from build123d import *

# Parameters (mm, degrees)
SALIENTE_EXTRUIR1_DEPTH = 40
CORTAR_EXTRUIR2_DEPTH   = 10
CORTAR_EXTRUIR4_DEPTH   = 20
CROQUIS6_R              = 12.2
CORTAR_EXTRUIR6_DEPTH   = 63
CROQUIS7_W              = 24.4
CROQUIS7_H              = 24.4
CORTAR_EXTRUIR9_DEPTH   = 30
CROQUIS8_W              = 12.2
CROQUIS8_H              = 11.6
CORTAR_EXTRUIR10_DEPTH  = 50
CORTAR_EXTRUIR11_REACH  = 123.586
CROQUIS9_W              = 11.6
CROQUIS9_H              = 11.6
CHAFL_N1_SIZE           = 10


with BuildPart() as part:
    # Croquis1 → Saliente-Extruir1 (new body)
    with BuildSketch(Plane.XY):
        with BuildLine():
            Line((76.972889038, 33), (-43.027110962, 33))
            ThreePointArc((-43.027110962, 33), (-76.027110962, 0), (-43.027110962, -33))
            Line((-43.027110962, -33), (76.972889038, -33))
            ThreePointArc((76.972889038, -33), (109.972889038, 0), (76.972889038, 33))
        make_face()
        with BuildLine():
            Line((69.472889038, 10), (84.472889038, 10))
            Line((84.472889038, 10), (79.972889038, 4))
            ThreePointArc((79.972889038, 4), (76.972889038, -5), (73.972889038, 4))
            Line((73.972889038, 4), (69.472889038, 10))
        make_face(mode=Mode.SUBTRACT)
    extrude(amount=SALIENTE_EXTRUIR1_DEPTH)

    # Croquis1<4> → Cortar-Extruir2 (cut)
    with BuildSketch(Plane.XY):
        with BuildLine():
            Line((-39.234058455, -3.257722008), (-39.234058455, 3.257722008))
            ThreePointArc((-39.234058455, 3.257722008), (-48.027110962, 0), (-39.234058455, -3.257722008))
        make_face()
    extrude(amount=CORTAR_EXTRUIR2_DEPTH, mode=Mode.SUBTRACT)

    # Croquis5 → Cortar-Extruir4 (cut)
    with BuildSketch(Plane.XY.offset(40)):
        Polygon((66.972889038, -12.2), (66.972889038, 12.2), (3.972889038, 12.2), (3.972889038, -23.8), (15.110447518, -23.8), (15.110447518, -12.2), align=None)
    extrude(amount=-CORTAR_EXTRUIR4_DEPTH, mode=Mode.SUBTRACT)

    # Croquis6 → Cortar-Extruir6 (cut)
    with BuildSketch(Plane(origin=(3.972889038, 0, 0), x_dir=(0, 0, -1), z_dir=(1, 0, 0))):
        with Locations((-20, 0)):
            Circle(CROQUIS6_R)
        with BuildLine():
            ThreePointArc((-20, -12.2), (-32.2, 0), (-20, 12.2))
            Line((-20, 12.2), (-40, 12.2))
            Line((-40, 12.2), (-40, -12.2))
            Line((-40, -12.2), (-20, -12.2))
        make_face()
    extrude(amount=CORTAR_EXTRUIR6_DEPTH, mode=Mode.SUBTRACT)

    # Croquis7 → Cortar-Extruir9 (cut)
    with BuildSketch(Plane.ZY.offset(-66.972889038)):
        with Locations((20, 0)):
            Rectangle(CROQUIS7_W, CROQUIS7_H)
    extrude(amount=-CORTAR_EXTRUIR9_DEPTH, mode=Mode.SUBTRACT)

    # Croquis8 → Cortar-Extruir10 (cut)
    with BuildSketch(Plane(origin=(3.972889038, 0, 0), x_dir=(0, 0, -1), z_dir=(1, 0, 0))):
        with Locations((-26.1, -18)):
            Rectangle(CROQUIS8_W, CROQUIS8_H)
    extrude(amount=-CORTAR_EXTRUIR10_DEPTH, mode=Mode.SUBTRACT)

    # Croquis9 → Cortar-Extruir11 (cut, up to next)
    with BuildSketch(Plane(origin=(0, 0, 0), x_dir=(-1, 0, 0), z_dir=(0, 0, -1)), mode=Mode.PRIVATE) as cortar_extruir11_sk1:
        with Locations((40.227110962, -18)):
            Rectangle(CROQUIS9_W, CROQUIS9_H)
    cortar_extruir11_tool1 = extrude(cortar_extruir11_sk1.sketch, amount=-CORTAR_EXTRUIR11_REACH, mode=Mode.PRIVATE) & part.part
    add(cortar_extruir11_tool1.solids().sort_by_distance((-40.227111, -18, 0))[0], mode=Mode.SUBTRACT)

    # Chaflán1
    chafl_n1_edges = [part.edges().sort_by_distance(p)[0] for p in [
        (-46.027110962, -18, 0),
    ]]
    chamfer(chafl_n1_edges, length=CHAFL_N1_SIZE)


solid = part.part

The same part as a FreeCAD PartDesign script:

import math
import FreeCAD as App
import Part
import Sketcher
Q = App.Units.Quantity


def edges_at(feature, points):
    """Names of the edges that pass closest to the given points."""
    edges = feature.Shape.Edges
    near = lambda p: min(range(len(edges)), key=lambda i: edges[i].distToShape(Part.Vertex(*p))[0])
    return sorted({f"Edge{near(p) + 1}" for p in points})


def add_polygon(sketch, points):
    """Adds a closed chain of lines whose ends are joined by coincident constraints."""
    first, n = sketch.GeometryCount, len(points)
    for a, b in zip(points, points[1:] + points[:1]):
        sketch.addGeometry(Part.LineSegment(App.Vector(*a, 0), App.Vector(*b, 0)), False)
    for i in range(n):
        sketch.addConstraint(Sketcher.Constraint("Coincident", first + i, 2, first + (i + 1) % n, 1))

doc = App.newDocument("Part")
body = doc.addObject("PartDesign::Body", "Body")

sketch1 = body.newObject("Sketcher::SketchObject", "Sketch")
sketch1.AttachmentSupport = (doc.getObject("XY_Plane"), [""])
sketch1.MapMode = "FlatFace"
sketch1.addGeometry([
    Part.LineSegment(App.Vector(77, 33, 0), App.Vector(-43, 33, 0)),
    Part.ArcOfCircle(Part.Circle(App.Vector(-43, 0, 0), App.Vector(0, 0, 1), 33), math.radians(90), math.radians(270)),
    Part.LineSegment(App.Vector(-43, -33, 0), App.Vector(77, -33, 0)),
    Part.ArcOfCircle(Part.Circle(App.Vector(77, 0, 0), App.Vector(0, 0, 1), 33), math.radians(-90), math.radians(90)),
    Part.LineSegment(App.Vector(74, 4, 0), App.Vector(69, 10, 0)),
    Part.LineSegment(App.Vector(69, 10, 0), App.Vector(84, 10, 0)),
    Part.LineSegment(App.Vector(84, 10, 0), App.Vector(80, 4, 0)),
    Part.ArcOfCircle(Part.Circle(App.Vector(77, 0, 0), App.Vector(0, 0, 1), 5), math.radians(127), math.radians(413)),
], False)
sketch1.addConstraint([
    Sketcher.Constraint("Tangent", 0, 2, 1, 1),
    Sketcher.Constraint("Tangent", 1, 2, 2, 1),
    Sketcher.Constraint("Tangent", 2, 2, 3, 1),
    Sketcher.Constraint("Tangent", 3, 2, 0, 1),
    Sketcher.Constraint("Coincident", 4, 2, 5, 1),
    Sketcher.Constraint("Coincident", 5, 2, 6, 1),
    Sketcher.Constraint("Coincident", 6, 2, 7, 2),
    Sketcher.Constraint("Coincident", 7, 1, 4, 1),
    Sketcher.Constraint("Horizontal", 0),
    Sketcher.Constraint("Horizontal", 2),
    Sketcher.Constraint("Horizontal", 5),
    Sketcher.Constraint("Coincident", 7, 3, 3, 3),
    Sketcher.Constraint("PointOnObject", 1, 3, -1),
    Sketcher.Constraint("Horizontal", 6, 2, 7, 1),
    Sketcher.Constraint("Equal", 4, 6),
    Sketcher.Constraint("Radius", 1, Q("33 mm")),
    Sketcher.Constraint("Radius", 7, Q("5 mm")),
    Sketcher.Constraint("DistanceX", 0, 2, 0, 1, Q("120 mm")),
    Sketcher.Constraint("DistanceX", 5, 1, 5, 2, Q("15 mm")),
    Sketcher.Constraint("DistanceY", -1, 1, 4, 2, Q("10 mm")),
    Sketcher.Constraint("DistanceY", -1, 1, 6, 2, Q("4 mm")),
    Sketcher.Constraint("DistanceX", 1, 3, -1, 1, Q("43.027111 mm")),
])
pad1 = body.newObject("PartDesign::Pad", "Pad")
pad1.Profile = sketch1
pad1.Length = 40

sketch2 = body.newObject("Sketcher::SketchObject", "Sketch001")
sketch2.AttachmentSupport = (doc.getObject("XY_Plane"), [""])
sketch2.MapMode = "FlatFace"
sketch2.addGeometry([
    Part.LineSegment(App.Vector(-39, -3, 0), App.Vector(-39, 3, 0)),
    Part.ArcOfCircle(Part.Circle(App.Vector(-43, 0, 0), App.Vector(0, 0, 1), 5), math.radians(41), math.radians(319)),
], False)
sketch2.addConstraint([
    Sketcher.Constraint("Coincident", 0, 1, 1, 2),
    Sketcher.Constraint("Coincident", 1, 1, 0, 2),
    Sketcher.Constraint("Vertical", 0),
    Sketcher.Constraint("PointOnObject", 1, 3, -1),
    Sketcher.Constraint("Radius", 1, Q("5 mm")),
    Sketcher.Constraint("DistanceY", 0, 1, 0, 2, Q("6.515444 mm")),
    Sketcher.Constraint("DistanceX", 1, 3, -1, 1, Q("43.027111 mm")),
])
pocket1 = body.newObject("PartDesign::Pocket", "Pocket")
pocket1.Profile = sketch2
pocket1.Length = 10
pocket1.Reversed = True

sketch3 = body.newObject("Sketcher::SketchObject", "Sketch002")
sketch3.AttachmentSupport = (doc.getObject("XY_Plane"), [""])
sketch3.MapMode = "FlatFace"
sketch3.AttachmentOffset = App.Placement(App.Vector(0, 0, 40), App.Rotation())
add_polygon(sketch3, [(67, -12), (67, 12), (4, 12), (4, -24), (15, -24), (15, -12)])
sketch3.addConstraint([
    Sketcher.Constraint("Vertical", 0),
    Sketcher.Constraint("Horizontal", 1),
    Sketcher.Constraint("Vertical", 2),
    Sketcher.Constraint("Horizontal", 3),
    Sketcher.Constraint("Vertical", 4),
    Sketcher.Constraint("Horizontal", 5),
    Sketcher.Constraint("DistanceX", 1, 2, 1, 1, Q("63 mm")),
    Sketcher.Constraint("DistanceY", 2, 2, 2, 1, Q("36 mm")),
    Sketcher.Constraint("DistanceY", 0, 1, 0, 2, Q("24.4 mm")),
    Sketcher.Constraint("DistanceY", -1, 1, 0, 2, Q("12.2 mm")),
    Sketcher.Constraint("DistanceX", 3, 1, 3, 2, Q("11.137558 mm")),
    Sketcher.Constraint("DistanceX", -1, 1, 0, 2, Q("66.972889 mm")),
])
pocket2 = body.newObject("PartDesign::Pocket", "Pocket001")
pocket2.Profile = sketch3
pocket2.Length = 20

sketch4 = body.newObject("Sketcher::SketchObject", "Sketch003")
sketch4.AttachmentSupport = (doc.getObject("YZ_Plane"), [""])
sketch4.MapMode = "FlatFace"
sketch4.AttachmentOffset = App.Placement(App.Vector(0, 0, 3.972889), App.Rotation())
sketch4.addGeometry([
    Part.LineSegment(App.Vector(12, 20, 0), App.Vector(12, 40, 0)),
    Part.LineSegment(App.Vector(12, 40, 0), App.Vector(-12, 40, 0)),
    Part.LineSegment(App.Vector(-12, 40, 0), App.Vector(-12, 20, 0)),
    Part.ArcOfCircle(Part.Circle(App.Vector(0, 20, 0), App.Vector(0, 0, 1), 12), math.radians(180), math.radians(360)),
], False)
sketch4.addConstraint([
    Sketcher.Constraint("Coincident", 0, 2, 1, 1),
    Sketcher.Constraint("Coincident", 1, 2, 2, 1),
    Sketcher.Constraint("Tangent", 2, 2, 3, 1),
    Sketcher.Constraint("Tangent", 3, 2, 0, 1),
    Sketcher.Constraint("Vertical", 0),
    Sketcher.Constraint("Horizontal", 1),
    Sketcher.Constraint("Vertical", 2),
    Sketcher.Constraint("PointOnObject", 3, 3, -2),
    Sketcher.Constraint("Radius", 3, Q("12.2 mm")),
    Sketcher.Constraint("DistanceY", 0, 1, 0, 2, Q("20 mm")),
    Sketcher.Constraint("DistanceY", -1, 1, 3, 3, Q("20 mm")),
])
pocket3 = body.newObject("PartDesign::Pocket", "Pocket002")
pocket3.Profile = sketch4
pocket3.Length = 63
pocket3.Reversed = True

sketch5 = body.newObject("Sketcher::SketchObject", "Sketch004")
sketch5.AttachmentSupport = (doc.getObject("YZ_Plane"), [""])
sketch5.MapMode = "FlatFace"
sketch5.AttachmentOffset = App.Placement(App.Vector(0, 0, 66.972889), App.Rotation())
add_polygon(sketch5, [(12, 8), (-12, 8), (-12, 32), (12, 32)])
sketch5.addConstraint([
    Sketcher.Constraint("Horizontal", 0),
    Sketcher.Constraint("Vertical", 1),
    Sketcher.Constraint("Horizontal", 2),
    Sketcher.Constraint("Vertical", 3),
    Sketcher.Constraint("Equal", 2, 1),
    Sketcher.Constraint("DistanceX", 0, 2, 0, 1, Q("24.4 mm")),
    Sketcher.Constraint("DistanceX", 0, 2, -1, 1, Q("12.2 mm")),
    Sketcher.Constraint("DistanceY", -1, 1, 0, 2, Q("7.8 mm")),
])
pocket4 = body.newObject("PartDesign::Pocket", "Pocket003")
pocket4.Profile = sketch5
pocket4.Length = 30
pocket4.Reversed = True

sketch6 = body.newObject("Sketcher::SketchObject", "Sketch005")
sketch6.AttachmentSupport = (doc.getObject("YZ_Plane"), [""])
sketch6.MapMode = "FlatFace"
sketch6.AttachmentOffset = App.Placement(App.Vector(0, 0, 3.972889), App.Rotation())
add_polygon(sketch6, [(-12, 32), (-24, 32), (-24, 20), (-12, 20)])
sketch6.addConstraint([
    Sketcher.Constraint("Horizontal", 0),
    Sketcher.Constraint("Vertical", 1),
    Sketcher.Constraint("Horizontal", 2),
    Sketcher.Constraint("Vertical", 3),
    Sketcher.Constraint("DistanceX", 0, 2, 0, 1, Q("11.6 mm")),
    Sketcher.Constraint("DistanceY", 1, 2, 1, 1, Q("12.2 mm")),
    Sketcher.Constraint("DistanceY", -1, 1, 1, 2, Q("20 mm")),
    Sketcher.Constraint("DistanceX", 0, 2, -1, 1, Q("23.8 mm")),
])
pocket5 = body.newObject("PartDesign::Pocket", "Pocket004")
pocket5.Profile = sketch6
pocket5.Length = 50

sketch7 = body.newObject("Sketcher::SketchObject", "Sketch006")
sketch7.AttachmentSupport = (doc.getObject("XY_Plane"), [""])
sketch7.MapMode = "FlatFace"
add_polygon(sketch7, [(-34, -12), (-34, -24), (-46, -24), (-46, -12)])
sketch7.addConstraint([
    Sketcher.Constraint("Vertical", 0),
    Sketcher.Constraint("Horizontal", 1),
    Sketcher.Constraint("Vertical", 2),
    Sketcher.Constraint("Horizontal", 3),
    Sketcher.Constraint("Equal", 3, 0),
    Sketcher.Constraint("DistanceX", 1, 2, 1, 1, Q("11.6 mm")),
    Sketcher.Constraint("DistanceY", 0, 2, -1, 1, Q("23.8 mm")),
    Sketcher.Constraint("DistanceX", 0, 2, -1, 1, Q("34.427111 mm")),
])
pocket6 = body.newObject("PartDesign::Pocket", "Pocket005")
pocket6.Profile = sketch7
pocket6.Type = "UpToFirst"
pocket6.Reversed = True
doc.recompute()

chamfer = body.newObject("PartDesign::Chamfer", "Chamfer")
chamfer.Base = (pocket6, edges_at(pocket6, [(-46.027, -18, 0)]))
chamfer.Size = 10

doc.recompute()
